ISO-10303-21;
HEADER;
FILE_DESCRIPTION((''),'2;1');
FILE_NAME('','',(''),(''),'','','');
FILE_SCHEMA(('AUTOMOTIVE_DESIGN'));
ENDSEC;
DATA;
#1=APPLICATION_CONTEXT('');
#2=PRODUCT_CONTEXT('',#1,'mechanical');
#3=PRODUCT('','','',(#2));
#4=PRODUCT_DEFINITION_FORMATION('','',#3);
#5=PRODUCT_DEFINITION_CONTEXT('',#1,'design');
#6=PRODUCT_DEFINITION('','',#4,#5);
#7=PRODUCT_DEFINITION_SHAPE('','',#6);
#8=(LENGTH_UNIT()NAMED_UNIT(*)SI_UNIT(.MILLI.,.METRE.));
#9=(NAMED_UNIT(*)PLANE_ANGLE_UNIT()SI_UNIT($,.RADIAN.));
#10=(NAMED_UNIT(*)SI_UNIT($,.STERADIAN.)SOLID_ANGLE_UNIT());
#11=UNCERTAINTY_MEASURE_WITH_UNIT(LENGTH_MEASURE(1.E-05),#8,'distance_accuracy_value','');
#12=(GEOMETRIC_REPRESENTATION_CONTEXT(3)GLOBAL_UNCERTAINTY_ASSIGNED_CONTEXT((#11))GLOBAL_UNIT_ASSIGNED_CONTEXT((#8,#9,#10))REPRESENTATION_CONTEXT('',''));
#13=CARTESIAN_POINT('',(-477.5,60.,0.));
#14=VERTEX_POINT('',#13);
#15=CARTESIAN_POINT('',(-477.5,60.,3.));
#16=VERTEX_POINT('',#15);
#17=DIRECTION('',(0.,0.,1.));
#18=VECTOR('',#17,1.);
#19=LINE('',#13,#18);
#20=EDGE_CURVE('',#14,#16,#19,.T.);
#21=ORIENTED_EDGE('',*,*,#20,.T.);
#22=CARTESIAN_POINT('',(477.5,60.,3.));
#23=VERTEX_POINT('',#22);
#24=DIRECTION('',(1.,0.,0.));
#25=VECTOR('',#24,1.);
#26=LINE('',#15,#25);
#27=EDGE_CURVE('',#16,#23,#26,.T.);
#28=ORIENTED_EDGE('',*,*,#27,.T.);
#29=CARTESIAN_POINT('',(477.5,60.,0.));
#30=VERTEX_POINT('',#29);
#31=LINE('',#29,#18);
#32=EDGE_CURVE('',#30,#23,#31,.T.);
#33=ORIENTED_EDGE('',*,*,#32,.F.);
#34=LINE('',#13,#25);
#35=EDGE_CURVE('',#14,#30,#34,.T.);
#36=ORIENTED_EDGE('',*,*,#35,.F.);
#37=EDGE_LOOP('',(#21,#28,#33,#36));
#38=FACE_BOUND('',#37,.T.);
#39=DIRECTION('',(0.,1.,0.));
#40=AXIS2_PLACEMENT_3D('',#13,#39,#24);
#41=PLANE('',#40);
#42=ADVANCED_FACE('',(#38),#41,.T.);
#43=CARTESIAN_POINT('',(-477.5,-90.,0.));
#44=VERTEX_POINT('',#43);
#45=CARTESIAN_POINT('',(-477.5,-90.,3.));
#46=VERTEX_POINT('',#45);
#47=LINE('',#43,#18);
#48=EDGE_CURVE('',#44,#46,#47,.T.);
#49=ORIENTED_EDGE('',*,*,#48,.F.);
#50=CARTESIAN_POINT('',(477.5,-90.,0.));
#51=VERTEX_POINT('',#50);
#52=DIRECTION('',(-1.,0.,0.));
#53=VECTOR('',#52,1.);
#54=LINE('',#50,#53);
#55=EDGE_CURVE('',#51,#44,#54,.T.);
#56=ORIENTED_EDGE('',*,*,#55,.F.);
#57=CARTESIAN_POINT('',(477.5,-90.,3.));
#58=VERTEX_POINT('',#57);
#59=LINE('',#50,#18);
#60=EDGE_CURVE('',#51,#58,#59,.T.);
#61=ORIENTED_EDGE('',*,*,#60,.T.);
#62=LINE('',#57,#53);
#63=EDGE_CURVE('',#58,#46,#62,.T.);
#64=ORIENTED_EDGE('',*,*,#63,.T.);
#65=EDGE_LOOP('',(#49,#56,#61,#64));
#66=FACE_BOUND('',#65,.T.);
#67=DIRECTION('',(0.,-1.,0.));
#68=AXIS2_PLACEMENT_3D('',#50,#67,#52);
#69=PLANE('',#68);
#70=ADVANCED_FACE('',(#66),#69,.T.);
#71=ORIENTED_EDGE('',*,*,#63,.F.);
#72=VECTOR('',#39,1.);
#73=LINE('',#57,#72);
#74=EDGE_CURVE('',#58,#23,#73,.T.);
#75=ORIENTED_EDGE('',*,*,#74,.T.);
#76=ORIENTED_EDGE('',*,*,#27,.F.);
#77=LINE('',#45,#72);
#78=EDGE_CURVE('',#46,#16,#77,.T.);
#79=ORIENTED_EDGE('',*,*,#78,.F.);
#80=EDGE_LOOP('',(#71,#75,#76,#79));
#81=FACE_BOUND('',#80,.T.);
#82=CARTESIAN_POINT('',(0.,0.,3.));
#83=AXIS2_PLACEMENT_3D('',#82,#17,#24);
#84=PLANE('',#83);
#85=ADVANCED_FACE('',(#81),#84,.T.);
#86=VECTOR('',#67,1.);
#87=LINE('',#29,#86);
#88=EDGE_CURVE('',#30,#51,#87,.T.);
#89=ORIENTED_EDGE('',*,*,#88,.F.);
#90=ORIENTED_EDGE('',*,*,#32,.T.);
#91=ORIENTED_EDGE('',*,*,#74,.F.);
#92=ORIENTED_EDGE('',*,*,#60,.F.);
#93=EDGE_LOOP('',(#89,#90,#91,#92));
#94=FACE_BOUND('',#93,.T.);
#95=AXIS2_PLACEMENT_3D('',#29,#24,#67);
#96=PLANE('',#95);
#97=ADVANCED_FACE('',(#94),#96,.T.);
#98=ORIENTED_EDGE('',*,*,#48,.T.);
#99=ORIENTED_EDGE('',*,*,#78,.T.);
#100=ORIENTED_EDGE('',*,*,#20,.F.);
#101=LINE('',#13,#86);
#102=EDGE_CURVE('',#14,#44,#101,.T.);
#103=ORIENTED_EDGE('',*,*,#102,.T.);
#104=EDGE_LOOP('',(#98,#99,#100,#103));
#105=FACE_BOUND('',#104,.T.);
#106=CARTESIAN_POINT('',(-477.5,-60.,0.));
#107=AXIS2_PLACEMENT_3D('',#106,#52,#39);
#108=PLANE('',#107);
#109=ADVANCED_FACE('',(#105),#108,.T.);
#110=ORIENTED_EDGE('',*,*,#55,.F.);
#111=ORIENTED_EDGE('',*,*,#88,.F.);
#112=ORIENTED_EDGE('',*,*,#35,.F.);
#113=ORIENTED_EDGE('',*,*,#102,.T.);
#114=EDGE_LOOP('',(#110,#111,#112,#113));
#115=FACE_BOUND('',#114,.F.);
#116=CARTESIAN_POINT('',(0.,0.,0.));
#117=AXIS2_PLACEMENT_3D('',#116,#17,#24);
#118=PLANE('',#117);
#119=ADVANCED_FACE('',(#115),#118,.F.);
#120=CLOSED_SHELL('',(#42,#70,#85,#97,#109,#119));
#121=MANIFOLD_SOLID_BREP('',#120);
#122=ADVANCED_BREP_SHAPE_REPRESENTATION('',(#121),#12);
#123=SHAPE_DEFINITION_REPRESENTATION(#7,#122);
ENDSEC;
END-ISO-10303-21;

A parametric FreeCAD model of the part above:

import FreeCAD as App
import Part
import Sketcher
Q = App.Units.Quantity


def add_polygon(sketch, points):
    """Adds a closed chain of lines whose ends are joined by coincident constraints."""
    first, n = sketch.GeometryCount, len(points)
    for a, b in zip(points, points[1:] + points[:1]):
        sketch.addGeometry(Part.LineSegment(App.Vector(*a, 0), App.Vector(*b, 0)), False)
    for i in range(n):
        sketch.addConstraint(Sketcher.Constraint("Coincident", first + i, 2, first + (i + 1) % n, 1))

doc = App.newDocument("Part")
body = doc.addObject("PartDesign::Body", "Body")

# Sketch on XY plane
sketch1 = doc.addObject("Sketcher::SketchObject", "Sketch")
body.addObject(sketch1)
sketch1.AttachmentSupport = (doc.XY_Plane, [""])
sketch1.MapMode = "FlatFace"
add_polygon(sketch1, [(-478, -60), (478, -60), (478, 60), (-478, 60)])  # lines 0-3
sketch1.addConstraint([
    Sketcher.Constraint("Horizontal", 0),
    Sketcher.Constraint("Vertical", 1),
    Sketcher.Constraint("Horizontal", 2),
    Sketcher.Constraint("Vertical", 3),
    Sketcher.Constraint("Symmetric", 0, 2, 2, 2, -1, 1),
    Sketcher.Constraint("DistanceX", 0, 1, 0, 2, Q("955 mm")),
    Sketcher.Constraint("DistanceY", 1, 1, 1, 2, Q("120 mm")),
])
pad1 = doc.addObject("PartDesign::Pad", "Pad")
body.addObject(pad1)
pad1.Profile = sketch1
pad1.Length = 3

# Sketch on XY plane
sketch2 = doc.addObject("Sketcher::SketchObject", "Sketch001")
body.addObject(sketch2)
sketch2.AttachmentSupport = (doc.XY_Plane, [""])
sketch2.MapMode = "FlatFace"
add_polygon(sketch2, [(-478, -90), (-478, -60), (478, -60), (478, -90)])  # lines 0-3
sketch2.addConstraint([
    Sketcher.Constraint("Vertical", 0),
    Sketcher.Constraint("Horizontal", 1),
    Sketcher.Constraint("Vertical", 2),
    Sketcher.Constraint("Horizontal", 3),
    Sketcher.Constraint("DistanceY", 0, 1, 0, 2, Q("30 mm")),
    Sketcher.Constraint("DistanceX", 1, 1, 1, 2, Q("955 mm")),
    Sketcher.Constraint("DistanceY", 0, 2, -1, 1, Q("60 mm")),
    Sketcher.Constraint("DistanceX", 0, 2, -1, 1, Q("477.5 mm")),
])
pad2 = doc.addObject("PartDesign::Pad", "Pad001")
body.addObject(pad2)
pad2.Profile = sketch2
pad2.Length = 3

doc.recompute()
